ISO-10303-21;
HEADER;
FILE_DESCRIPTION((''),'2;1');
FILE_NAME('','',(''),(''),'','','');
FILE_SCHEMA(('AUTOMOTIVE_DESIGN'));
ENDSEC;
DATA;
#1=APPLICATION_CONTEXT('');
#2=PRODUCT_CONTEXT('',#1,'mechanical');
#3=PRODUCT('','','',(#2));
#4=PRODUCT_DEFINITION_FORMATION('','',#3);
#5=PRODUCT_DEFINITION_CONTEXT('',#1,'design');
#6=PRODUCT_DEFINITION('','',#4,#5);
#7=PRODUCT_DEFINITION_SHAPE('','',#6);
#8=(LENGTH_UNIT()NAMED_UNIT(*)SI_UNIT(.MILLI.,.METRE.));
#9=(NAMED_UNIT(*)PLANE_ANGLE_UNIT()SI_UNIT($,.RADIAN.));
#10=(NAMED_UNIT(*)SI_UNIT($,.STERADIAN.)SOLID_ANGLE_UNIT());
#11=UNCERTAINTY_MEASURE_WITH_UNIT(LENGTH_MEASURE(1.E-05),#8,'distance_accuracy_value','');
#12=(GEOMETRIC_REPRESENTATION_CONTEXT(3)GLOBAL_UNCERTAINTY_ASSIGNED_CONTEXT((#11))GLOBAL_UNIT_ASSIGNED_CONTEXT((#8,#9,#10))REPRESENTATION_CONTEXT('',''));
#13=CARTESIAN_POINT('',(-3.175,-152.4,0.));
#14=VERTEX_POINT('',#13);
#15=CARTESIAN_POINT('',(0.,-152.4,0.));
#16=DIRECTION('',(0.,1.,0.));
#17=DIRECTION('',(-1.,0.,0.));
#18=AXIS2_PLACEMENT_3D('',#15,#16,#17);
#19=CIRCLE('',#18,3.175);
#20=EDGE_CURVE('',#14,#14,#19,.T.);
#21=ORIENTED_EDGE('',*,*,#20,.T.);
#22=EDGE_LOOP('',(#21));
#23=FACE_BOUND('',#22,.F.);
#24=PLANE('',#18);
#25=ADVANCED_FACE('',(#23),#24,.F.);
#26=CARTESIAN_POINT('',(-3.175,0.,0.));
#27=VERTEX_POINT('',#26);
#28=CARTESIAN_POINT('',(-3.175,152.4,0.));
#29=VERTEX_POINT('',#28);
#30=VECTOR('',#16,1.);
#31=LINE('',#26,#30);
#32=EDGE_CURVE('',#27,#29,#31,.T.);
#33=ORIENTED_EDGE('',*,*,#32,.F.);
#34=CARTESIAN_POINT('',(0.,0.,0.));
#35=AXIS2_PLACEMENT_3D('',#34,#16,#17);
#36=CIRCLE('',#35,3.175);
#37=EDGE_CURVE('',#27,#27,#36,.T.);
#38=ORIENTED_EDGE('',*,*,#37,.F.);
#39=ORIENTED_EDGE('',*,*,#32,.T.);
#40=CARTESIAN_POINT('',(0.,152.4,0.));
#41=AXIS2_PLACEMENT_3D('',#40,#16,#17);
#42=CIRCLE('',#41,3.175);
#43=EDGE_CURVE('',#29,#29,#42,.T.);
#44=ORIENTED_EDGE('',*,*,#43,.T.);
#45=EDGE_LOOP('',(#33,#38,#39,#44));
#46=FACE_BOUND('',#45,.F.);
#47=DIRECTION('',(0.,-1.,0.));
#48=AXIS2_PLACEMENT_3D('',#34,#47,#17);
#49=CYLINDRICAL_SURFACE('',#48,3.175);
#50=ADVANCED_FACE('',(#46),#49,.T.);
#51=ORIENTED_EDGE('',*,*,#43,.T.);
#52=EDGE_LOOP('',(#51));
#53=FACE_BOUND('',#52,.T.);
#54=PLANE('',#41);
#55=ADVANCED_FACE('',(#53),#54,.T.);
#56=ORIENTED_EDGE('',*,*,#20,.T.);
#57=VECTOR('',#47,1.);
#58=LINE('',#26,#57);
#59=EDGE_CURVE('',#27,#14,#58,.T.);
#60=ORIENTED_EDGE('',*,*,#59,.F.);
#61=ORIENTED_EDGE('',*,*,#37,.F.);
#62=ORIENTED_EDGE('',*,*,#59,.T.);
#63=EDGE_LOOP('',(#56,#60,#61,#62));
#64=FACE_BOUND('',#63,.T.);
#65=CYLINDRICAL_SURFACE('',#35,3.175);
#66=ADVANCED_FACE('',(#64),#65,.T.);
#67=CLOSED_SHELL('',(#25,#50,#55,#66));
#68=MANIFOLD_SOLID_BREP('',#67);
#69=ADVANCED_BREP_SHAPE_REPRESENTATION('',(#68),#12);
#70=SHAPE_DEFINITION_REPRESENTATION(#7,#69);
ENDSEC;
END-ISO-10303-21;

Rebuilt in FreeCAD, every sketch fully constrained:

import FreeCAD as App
import Part
import Sketcher
from FreeCAD import Vector
Q = App.Units.Quantity

doc = App.newDocument("Part")
body = doc.addObject("PartDesign::Body", "Body")

sketch1 = body.newObject("Sketcher::SketchObject", "Sketch")
sketch1.AttachmentSupport = (doc.getObject("XZ_Plane"), [""])
sketch1.MapMode = "FlatFace"
sketch1.addGeometry(Part.Circle(Vector(0, 0, 0), Vector(0, 0, 1), 3.2), False)
sketch1.addConstraint(Sketcher.Constraint("Coincident", 0, 3, -1, 1))
sketch1.addConstraint(Sketcher.Constraint("Diameter", 0, Q("0.25 in")))
pad1 = body.newObject("PartDesign::Pad", "Pad")
pad1.Profile = sketch1
pad1.Length = Q("12 in")
pad1.Midplane = True

doc.recompute()
